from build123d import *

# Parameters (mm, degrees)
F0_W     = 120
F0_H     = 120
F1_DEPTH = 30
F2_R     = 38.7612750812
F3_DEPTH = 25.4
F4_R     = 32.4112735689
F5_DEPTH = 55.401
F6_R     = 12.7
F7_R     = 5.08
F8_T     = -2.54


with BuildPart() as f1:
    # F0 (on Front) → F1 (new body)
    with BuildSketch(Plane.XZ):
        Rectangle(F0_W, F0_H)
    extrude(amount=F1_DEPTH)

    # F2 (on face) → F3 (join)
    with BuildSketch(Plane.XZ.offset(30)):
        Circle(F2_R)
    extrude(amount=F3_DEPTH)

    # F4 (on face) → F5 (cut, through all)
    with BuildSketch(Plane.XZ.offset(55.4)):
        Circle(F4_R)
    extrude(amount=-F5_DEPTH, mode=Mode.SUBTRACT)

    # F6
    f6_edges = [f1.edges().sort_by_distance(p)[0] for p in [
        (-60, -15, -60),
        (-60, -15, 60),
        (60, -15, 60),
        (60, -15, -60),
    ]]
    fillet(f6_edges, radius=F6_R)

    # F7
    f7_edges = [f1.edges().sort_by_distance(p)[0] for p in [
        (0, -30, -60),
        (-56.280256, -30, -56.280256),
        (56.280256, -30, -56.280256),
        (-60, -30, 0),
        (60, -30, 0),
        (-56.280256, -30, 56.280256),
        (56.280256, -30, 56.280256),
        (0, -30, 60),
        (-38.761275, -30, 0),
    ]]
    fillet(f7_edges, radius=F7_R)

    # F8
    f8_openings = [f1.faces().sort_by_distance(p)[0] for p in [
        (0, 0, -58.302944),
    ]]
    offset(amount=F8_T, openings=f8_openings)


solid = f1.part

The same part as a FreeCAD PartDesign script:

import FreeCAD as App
import Part
import Sketcher

V = App.Vector
Q = App.Units.Quantity


def edges_at(feature, points):
    """Names of the edges that pass closest to the given points."""
    edges = feature.Shape.Edges
    near = lambda p: min(range(len(edges)), key=lambda i: edges[i].distToShape(Part.Vertex(*p))[0])
    return sorted({f"Edge{near(p) + 1}" for p in points})


def faces_at(feature, points):
    """Names of the faces that lie closest to the given points."""
    faces = feature.Shape.Faces
    near = lambda p: min(range(len(faces)), key=lambda i: faces[i].distToShape(Part.Vertex(*p))[0])
    return sorted({f"Face{near(p) + 1}" for p in points})


def add_polygon(sketch, points):
    """Adds a closed chain of lines whose ends are joined by coincident constraints."""
    first, n = sketch.GeometryCount, len(points)
    for a, b in zip(points, points[1:] + points[:1]):
        sketch.addGeometry(Part.LineSegment(App.Vector(*a, 0), App.Vector(*b, 0)), False)
    for i in range(n):
        sketch.addConstraint(Sketcher.Constraint("Coincident", first + i, 2, first + (i + 1) % n, 1))

doc = App.newDocument("Part")
body = doc.addObject("PartDesign::Body", "Body")

sketch1 = doc.addObject("Sketcher::SketchObject", "Sketch")
body.addObject(sketch1)
sketch1.AttachmentSupport = (doc.XZ_Plane, [""])
sketch1.MapMode = "FlatFace"
add_polygon(sketch1, [(-60, 60), (-60, -60), (60, -60), (60, 60)])
sketch1.addConstraint(Sketcher.Constraint("Vertical", 0))
sketch1.addConstraint(Sketcher.Constraint("Horizontal", 1))
sketch1.addConstraint(Sketcher.Constraint("Vertical", 2))
sketch1.addConstraint(Sketcher.Constraint("Horizontal", 3))
sketch1.addConstraint(Sketcher.Constraint("Symmetric", 0, 2, 2, 2, -1, 1))
sketch1.addConstraint(Sketcher.Constraint("Equal", 3, 0))
sketch1.addConstraint(Sketcher.Constraint("DistanceX", 1, 1, 1, 2, Q("120 mm")))
pad1 = doc.addObject("PartDesign::Pad", "Pad")
body.addObject(pad1)
pad1.Profile = sketch1
pad1.Length = 30

sketch2 = doc.addObject("Sketcher::SketchObject", "Sketch001")
body.addObject(sketch2)
sketch2.AttachmentSupport = (doc.XZ_Plane, [""])
sketch2.MapMode = "FlatFace"
sketch2.AttachmentOffset = App.Placement(V(0, 0, 30), App.Rotation())
sketch2.addGeometry(Part.Circle(V(0, 0, 0), V(0, 0, 1), 39), False)
sketch2.addConstraint(Sketcher.Constraint("Coincident", 0, 3, -1, 1))
sketch2.addConstraint(Sketcher.Constraint("Diameter", 0, Q("77.52255 mm")))
pad2 = doc.addObject("PartDesign::Pad", "Pad001")
body.addObject(pad2)
pad2.Profile = sketch2
pad2.Length = Q("1 in")

sketch3 = doc.addObject("Sketcher::SketchObject", "Sketch002")
body.addObject(sketch3)
sketch3.AttachmentSupport = (doc.XZ_Plane, [""])
sketch3.MapMode = "FlatFace"
sketch3.AttachmentOffset = App.Placement(V(0, 0, 55.4), App.Rotation())
sketch3.addGeometry(Part.Circle(V(0, 0, 0), V(0, 0, 1), 32), False)
sketch3.addConstraint(Sketcher.Constraint("Coincident", 0, 3, -1, 1))
sketch3.addConstraint(Sketcher.Constraint("Diameter", 0, Q("64.822547 mm")))
pocket1 = doc.addObject("PartDesign::Pocket", "Pocket")
body.addObject(pocket1)
pocket1.Profile = sketch3
pocket1.Type = "ThroughAll"
doc.recompute()

fillet = doc.addObject("PartDesign::Fillet", "Fillet")
body.addObject(fillet)
fillet.Base = (pocket1, edges_at(pocket1, [
    (-60, -15, -60),
    (-60, -15, 60),
    (60, -15, 60),
    (60, -15, -60),
]))
fillet.Radius = Q("0.5 in")
doc.recompute()

fillet2 = doc.addObject("PartDesign::Fillet", "Fillet001")
body.addObject(fillet2)
fillet2.Base = (fillet, edges_at(fillet, [
    (0, -30, -60),
    (-56.28, -30, -56.28),
    (56.28, -30, -56.28),
    (-60, -30, 0),
    (60, -30, 0),
    (-56.28, -30, 56.28),
    (56.28, -30, 56.28),
    (0, -30, 60),
    (-38.761, -30, 0),
]))
fillet2.Radius = Q("0.2 in")
doc.recompute()

thickness = doc.addObject("PartDesign::Thickness", "Thickness")
body.addObject(thickness)
thickness.Base = (fillet2, faces_at(fillet2, [(-24, 0, -24)]))
thickness.Value = Q("0.1 in")
thickness.Reversed = True
thickness.Join = "Arc"

doc.recompute()
